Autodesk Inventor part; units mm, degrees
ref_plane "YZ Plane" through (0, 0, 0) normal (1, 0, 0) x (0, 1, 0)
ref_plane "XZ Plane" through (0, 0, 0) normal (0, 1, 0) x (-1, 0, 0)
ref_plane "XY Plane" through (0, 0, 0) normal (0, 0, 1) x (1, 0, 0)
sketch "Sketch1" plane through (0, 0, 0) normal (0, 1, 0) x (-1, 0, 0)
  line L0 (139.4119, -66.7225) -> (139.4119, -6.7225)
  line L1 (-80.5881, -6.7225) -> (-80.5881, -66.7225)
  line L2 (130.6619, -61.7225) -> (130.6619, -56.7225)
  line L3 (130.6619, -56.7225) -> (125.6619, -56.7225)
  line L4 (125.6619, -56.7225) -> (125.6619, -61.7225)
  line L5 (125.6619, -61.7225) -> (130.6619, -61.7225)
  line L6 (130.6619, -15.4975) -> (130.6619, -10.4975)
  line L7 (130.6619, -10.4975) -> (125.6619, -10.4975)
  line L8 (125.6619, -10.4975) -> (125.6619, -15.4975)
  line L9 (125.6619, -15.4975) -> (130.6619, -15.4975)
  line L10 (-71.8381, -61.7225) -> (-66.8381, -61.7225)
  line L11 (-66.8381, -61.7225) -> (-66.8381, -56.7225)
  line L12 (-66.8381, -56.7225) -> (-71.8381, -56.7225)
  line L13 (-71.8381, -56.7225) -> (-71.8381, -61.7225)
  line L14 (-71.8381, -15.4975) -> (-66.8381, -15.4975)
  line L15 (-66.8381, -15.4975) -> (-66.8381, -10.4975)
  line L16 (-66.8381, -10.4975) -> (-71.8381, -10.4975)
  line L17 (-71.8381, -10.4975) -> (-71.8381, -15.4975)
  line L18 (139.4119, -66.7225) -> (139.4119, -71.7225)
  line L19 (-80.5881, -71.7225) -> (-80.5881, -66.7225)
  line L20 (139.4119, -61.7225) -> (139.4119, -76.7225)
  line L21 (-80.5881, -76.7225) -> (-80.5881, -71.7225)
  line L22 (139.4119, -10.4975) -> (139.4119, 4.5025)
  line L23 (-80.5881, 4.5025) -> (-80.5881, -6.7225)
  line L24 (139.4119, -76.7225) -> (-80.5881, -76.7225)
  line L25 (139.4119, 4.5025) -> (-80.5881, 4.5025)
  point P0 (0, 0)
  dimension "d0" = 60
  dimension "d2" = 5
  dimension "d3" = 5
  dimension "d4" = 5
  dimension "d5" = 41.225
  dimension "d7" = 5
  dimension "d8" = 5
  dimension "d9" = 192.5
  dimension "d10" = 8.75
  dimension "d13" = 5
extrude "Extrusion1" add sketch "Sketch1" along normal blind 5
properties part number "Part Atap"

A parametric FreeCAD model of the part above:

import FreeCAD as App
import Part
import Sketcher

doc = App.newDocument("Part")
body = doc.addObject("PartDesign::Body", "Body")

sketch1 = body.newObject("Sketcher::SketchObject", "Sketch")
sketch1.AttachmentSupport = (doc.getObject("XZ_Plane"), [""])
sketch1.MapMode = "FlatFace"
sketch1.addGeometry([
    Part.LineSegment(App.Vector(-139.4119, -76.7225, 0), App.Vector(-139.4119, 4.5025, 0)),
    Part.LineSegment(App.Vector(-139.4119, 4.5025, 0), App.Vector(80.5881, 4.5025, 0)),
    Part.LineSegment(App.Vector(80.5881, 4.5025, 0), App.Vector(80.5881, -76.7225, 0)),
    Part.LineSegment(App.Vector(80.5881, -76.7225, 0), App.Vector(-139.4119, -76.7225, 0)),
    Part.LineSegment(App.Vector(66.8381, -61.7225, 0), App.Vector(71.8381, -61.7225, 0)),
    Part.LineSegment(App.Vector(71.8381, -61.7225, 0), App.Vector(71.8381, -56.7225, 0)),
    Part.LineSegment(App.Vector(71.8381, -56.7225, 0), App.Vector(66.8381, -56.7225, 0)),
    Part.LineSegment(App.Vector(66.8381, -56.7225, 0), App.Vector(66.8381, -61.7225, 0)),
    Part.LineSegment(App.Vector(-130.6619, -56.7225, 0), App.Vector(-130.6619, -61.7225, 0)),
    Part.LineSegment(App.Vector(-130.6619, -61.7225, 0), App.Vector(-125.6619, -61.7225, 0)),
    Part.LineSegment(App.Vector(-125.6619, -61.7225, 0), App.Vector(-125.6619, -56.7225, 0)),
    Part.LineSegment(App.Vector(-125.6619, -56.7225, 0), App.Vector(-130.6619, -56.7225, 0)),
    Part.LineSegment(App.Vector(66.8381, -15.4975, 0), App.Vector(71.8381, -15.4975, 0)),
    Part.LineSegment(App.Vector(71.8381, -15.4975, 0), App.Vector(71.8381, -10.4975, 0)),
    Part.LineSegment(App.Vector(71.8381, -10.4975, 0), App.Vector(66.8381, -10.4975, 0)),
    Part.LineSegment(App.Vector(66.8381, -10.4975, 0), App.Vector(66.8381, -15.4975, 0)),
    Part.LineSegment(App.Vector(-130.6619, -10.4975, 0), App.Vector(-130.6619, -15.4975, 0)),
    Part.LineSegment(App.Vector(-130.6619, -15.4975, 0), App.Vector(-125.6619, -15.4975, 0)),
    Part.LineSegment(App.Vector(-125.6619, -15.4975, 0), App.Vector(-125.6619, -10.4975, 0)),
    Part.LineSegment(App.Vector(-125.6619, -10.4975, 0), App.Vector(-130.6619, -10.4975, 0)),
], False)
sketch1.addConstraint([
    Sketcher.Constraint("Coincident", 0, 2, 1, 1),
    Sketcher.Constraint("Coincident", 1, 2, 2, 1),
    Sketcher.Constraint("Coincident", 2, 2, 3, 1),
    Sketcher.Constraint("Coincident", 3, 2, 0, 1),
    Sketcher.Constraint("Coincident", 4, 2, 5, 1),
    Sketcher.Constraint("Coincident", 5, 2, 6, 1),
    Sketcher.Constraint("Coincident", 6, 2, 7, 1),
    Sketcher.Constraint("Coincident", 7, 2, 4, 1),
    Sketcher.Constraint("Coincident", 8, 2, 9, 1),
    Sketcher.Constraint("Coincident", 9, 2, 10, 1),
    Sketcher.Constraint("Coincident", 10, 2, 11, 1),
    Sketcher.Constraint("Coincident", 11, 2, 8, 1),
    Sketcher.Constraint("Coincident", 12, 2, 13, 1),
    Sketcher.Constraint("Coincident", 13, 2, 14, 1),
    Sketcher.Constraint("Coincident", 14, 2, 15, 1),
    Sketcher.Constraint("Coincident", 15, 2, 12, 1),
    Sketcher.Constraint("Coincident", 16, 2, 17, 1),
    Sketcher.Constraint("Coincident", 17, 2, 18, 1),
    Sketcher.Constraint("Coincident", 18, 2, 19, 1),
    Sketcher.Constraint("Coincident", 19, 2, 16, 1),
    Sketcher.Constraint("Vertical", 0),
    Sketcher.Constraint("Horizontal", 1),
    Sketcher.Constraint("Vertical", 2),
    Sketcher.Constraint("Horizontal", 3),
    Sketcher.Constraint("Horizontal", 4),
    Sketcher.Constraint("Vertical", 5),
    Sketcher.Constraint("Horizontal", 6),
    Sketcher.Constraint("Vertical", 7),
    Sketcher.Constraint("Vertical", 8),
    Sketcher.Constraint("Horizontal", 9),
    Sketcher.Constraint("Vertical", 10),
    Sketcher.Constraint("Horizontal", 11),
    Sketcher.Constraint("Horizontal", 12),
    Sketcher.Constraint("Vertical", 13),
    Sketcher.Constraint("Horizontal", 14),
    Sketcher.Constraint("Vertical", 15),
    Sketcher.Constraint("Vertical", 16),
    Sketcher.Constraint("Horizontal", 17),
    Sketcher.Constraint("Vertical", 18),
    Sketcher.Constraint("Horizontal", 19),
    Sketcher.Constraint("Horizontal", 7, 2, 8, 2),
    Sketcher.Constraint("Horizontal", 6, 2, 10, 2),
    Sketcher.Constraint("Horizontal", 15, 2, 16, 2),
    Sketcher.Constraint("Horizontal", 14, 2, 18, 2),
    Sketcher.Constraint("Vertical", 5, 2, 12, 2),
    Sketcher.Constraint("Vertical", 7, 2, 14, 2),
    Sketcher.Constraint("Vertical", 11, 2, 16, 2),
    Sketcher.Constraint("Vertical", 10, 2, 17, 2),
    Sketcher.Constraint("Equal", 6, 9),
    Sketcher.Constraint("Equal", 19, 5),
    Sketcher.Constraint("Equal", 10, 13),
    Sketcher.Constraint("DistanceX", 4, 1, 4, 2, 5.0),
    Sketcher.Constraint("DistanceX", 9, 2, 7, 2, 192.5),
    Sketcher.Constraint("DistanceX", 1, 1, 1, 2, 220.0),
    Sketcher.Constraint("DistanceX", 4, 2, 2, 2, 8.75),
    Sketcher.Constraint("DistanceY", 2, 2, 4, 2, 15.0),
    Sketcher.Constraint("DistanceY", 12, 2, 1, 2, 20.0),
    Sketcher.Constraint("DistanceY", 5, 2, 12, 2, 41.225),
    Sketcher.Constraint("DistanceX", 0, 2, -1, 1, 139.412),
    Sketcher.Constraint("DistanceY", -1, 1, 0, 2, 4.5025),
])
pad1 = body.newObject("PartDesign::Pad", "Pad")
pad1.Profile = sketch1
pad1.Length = 5
pad1.Reversed = True

doc.recompute()
